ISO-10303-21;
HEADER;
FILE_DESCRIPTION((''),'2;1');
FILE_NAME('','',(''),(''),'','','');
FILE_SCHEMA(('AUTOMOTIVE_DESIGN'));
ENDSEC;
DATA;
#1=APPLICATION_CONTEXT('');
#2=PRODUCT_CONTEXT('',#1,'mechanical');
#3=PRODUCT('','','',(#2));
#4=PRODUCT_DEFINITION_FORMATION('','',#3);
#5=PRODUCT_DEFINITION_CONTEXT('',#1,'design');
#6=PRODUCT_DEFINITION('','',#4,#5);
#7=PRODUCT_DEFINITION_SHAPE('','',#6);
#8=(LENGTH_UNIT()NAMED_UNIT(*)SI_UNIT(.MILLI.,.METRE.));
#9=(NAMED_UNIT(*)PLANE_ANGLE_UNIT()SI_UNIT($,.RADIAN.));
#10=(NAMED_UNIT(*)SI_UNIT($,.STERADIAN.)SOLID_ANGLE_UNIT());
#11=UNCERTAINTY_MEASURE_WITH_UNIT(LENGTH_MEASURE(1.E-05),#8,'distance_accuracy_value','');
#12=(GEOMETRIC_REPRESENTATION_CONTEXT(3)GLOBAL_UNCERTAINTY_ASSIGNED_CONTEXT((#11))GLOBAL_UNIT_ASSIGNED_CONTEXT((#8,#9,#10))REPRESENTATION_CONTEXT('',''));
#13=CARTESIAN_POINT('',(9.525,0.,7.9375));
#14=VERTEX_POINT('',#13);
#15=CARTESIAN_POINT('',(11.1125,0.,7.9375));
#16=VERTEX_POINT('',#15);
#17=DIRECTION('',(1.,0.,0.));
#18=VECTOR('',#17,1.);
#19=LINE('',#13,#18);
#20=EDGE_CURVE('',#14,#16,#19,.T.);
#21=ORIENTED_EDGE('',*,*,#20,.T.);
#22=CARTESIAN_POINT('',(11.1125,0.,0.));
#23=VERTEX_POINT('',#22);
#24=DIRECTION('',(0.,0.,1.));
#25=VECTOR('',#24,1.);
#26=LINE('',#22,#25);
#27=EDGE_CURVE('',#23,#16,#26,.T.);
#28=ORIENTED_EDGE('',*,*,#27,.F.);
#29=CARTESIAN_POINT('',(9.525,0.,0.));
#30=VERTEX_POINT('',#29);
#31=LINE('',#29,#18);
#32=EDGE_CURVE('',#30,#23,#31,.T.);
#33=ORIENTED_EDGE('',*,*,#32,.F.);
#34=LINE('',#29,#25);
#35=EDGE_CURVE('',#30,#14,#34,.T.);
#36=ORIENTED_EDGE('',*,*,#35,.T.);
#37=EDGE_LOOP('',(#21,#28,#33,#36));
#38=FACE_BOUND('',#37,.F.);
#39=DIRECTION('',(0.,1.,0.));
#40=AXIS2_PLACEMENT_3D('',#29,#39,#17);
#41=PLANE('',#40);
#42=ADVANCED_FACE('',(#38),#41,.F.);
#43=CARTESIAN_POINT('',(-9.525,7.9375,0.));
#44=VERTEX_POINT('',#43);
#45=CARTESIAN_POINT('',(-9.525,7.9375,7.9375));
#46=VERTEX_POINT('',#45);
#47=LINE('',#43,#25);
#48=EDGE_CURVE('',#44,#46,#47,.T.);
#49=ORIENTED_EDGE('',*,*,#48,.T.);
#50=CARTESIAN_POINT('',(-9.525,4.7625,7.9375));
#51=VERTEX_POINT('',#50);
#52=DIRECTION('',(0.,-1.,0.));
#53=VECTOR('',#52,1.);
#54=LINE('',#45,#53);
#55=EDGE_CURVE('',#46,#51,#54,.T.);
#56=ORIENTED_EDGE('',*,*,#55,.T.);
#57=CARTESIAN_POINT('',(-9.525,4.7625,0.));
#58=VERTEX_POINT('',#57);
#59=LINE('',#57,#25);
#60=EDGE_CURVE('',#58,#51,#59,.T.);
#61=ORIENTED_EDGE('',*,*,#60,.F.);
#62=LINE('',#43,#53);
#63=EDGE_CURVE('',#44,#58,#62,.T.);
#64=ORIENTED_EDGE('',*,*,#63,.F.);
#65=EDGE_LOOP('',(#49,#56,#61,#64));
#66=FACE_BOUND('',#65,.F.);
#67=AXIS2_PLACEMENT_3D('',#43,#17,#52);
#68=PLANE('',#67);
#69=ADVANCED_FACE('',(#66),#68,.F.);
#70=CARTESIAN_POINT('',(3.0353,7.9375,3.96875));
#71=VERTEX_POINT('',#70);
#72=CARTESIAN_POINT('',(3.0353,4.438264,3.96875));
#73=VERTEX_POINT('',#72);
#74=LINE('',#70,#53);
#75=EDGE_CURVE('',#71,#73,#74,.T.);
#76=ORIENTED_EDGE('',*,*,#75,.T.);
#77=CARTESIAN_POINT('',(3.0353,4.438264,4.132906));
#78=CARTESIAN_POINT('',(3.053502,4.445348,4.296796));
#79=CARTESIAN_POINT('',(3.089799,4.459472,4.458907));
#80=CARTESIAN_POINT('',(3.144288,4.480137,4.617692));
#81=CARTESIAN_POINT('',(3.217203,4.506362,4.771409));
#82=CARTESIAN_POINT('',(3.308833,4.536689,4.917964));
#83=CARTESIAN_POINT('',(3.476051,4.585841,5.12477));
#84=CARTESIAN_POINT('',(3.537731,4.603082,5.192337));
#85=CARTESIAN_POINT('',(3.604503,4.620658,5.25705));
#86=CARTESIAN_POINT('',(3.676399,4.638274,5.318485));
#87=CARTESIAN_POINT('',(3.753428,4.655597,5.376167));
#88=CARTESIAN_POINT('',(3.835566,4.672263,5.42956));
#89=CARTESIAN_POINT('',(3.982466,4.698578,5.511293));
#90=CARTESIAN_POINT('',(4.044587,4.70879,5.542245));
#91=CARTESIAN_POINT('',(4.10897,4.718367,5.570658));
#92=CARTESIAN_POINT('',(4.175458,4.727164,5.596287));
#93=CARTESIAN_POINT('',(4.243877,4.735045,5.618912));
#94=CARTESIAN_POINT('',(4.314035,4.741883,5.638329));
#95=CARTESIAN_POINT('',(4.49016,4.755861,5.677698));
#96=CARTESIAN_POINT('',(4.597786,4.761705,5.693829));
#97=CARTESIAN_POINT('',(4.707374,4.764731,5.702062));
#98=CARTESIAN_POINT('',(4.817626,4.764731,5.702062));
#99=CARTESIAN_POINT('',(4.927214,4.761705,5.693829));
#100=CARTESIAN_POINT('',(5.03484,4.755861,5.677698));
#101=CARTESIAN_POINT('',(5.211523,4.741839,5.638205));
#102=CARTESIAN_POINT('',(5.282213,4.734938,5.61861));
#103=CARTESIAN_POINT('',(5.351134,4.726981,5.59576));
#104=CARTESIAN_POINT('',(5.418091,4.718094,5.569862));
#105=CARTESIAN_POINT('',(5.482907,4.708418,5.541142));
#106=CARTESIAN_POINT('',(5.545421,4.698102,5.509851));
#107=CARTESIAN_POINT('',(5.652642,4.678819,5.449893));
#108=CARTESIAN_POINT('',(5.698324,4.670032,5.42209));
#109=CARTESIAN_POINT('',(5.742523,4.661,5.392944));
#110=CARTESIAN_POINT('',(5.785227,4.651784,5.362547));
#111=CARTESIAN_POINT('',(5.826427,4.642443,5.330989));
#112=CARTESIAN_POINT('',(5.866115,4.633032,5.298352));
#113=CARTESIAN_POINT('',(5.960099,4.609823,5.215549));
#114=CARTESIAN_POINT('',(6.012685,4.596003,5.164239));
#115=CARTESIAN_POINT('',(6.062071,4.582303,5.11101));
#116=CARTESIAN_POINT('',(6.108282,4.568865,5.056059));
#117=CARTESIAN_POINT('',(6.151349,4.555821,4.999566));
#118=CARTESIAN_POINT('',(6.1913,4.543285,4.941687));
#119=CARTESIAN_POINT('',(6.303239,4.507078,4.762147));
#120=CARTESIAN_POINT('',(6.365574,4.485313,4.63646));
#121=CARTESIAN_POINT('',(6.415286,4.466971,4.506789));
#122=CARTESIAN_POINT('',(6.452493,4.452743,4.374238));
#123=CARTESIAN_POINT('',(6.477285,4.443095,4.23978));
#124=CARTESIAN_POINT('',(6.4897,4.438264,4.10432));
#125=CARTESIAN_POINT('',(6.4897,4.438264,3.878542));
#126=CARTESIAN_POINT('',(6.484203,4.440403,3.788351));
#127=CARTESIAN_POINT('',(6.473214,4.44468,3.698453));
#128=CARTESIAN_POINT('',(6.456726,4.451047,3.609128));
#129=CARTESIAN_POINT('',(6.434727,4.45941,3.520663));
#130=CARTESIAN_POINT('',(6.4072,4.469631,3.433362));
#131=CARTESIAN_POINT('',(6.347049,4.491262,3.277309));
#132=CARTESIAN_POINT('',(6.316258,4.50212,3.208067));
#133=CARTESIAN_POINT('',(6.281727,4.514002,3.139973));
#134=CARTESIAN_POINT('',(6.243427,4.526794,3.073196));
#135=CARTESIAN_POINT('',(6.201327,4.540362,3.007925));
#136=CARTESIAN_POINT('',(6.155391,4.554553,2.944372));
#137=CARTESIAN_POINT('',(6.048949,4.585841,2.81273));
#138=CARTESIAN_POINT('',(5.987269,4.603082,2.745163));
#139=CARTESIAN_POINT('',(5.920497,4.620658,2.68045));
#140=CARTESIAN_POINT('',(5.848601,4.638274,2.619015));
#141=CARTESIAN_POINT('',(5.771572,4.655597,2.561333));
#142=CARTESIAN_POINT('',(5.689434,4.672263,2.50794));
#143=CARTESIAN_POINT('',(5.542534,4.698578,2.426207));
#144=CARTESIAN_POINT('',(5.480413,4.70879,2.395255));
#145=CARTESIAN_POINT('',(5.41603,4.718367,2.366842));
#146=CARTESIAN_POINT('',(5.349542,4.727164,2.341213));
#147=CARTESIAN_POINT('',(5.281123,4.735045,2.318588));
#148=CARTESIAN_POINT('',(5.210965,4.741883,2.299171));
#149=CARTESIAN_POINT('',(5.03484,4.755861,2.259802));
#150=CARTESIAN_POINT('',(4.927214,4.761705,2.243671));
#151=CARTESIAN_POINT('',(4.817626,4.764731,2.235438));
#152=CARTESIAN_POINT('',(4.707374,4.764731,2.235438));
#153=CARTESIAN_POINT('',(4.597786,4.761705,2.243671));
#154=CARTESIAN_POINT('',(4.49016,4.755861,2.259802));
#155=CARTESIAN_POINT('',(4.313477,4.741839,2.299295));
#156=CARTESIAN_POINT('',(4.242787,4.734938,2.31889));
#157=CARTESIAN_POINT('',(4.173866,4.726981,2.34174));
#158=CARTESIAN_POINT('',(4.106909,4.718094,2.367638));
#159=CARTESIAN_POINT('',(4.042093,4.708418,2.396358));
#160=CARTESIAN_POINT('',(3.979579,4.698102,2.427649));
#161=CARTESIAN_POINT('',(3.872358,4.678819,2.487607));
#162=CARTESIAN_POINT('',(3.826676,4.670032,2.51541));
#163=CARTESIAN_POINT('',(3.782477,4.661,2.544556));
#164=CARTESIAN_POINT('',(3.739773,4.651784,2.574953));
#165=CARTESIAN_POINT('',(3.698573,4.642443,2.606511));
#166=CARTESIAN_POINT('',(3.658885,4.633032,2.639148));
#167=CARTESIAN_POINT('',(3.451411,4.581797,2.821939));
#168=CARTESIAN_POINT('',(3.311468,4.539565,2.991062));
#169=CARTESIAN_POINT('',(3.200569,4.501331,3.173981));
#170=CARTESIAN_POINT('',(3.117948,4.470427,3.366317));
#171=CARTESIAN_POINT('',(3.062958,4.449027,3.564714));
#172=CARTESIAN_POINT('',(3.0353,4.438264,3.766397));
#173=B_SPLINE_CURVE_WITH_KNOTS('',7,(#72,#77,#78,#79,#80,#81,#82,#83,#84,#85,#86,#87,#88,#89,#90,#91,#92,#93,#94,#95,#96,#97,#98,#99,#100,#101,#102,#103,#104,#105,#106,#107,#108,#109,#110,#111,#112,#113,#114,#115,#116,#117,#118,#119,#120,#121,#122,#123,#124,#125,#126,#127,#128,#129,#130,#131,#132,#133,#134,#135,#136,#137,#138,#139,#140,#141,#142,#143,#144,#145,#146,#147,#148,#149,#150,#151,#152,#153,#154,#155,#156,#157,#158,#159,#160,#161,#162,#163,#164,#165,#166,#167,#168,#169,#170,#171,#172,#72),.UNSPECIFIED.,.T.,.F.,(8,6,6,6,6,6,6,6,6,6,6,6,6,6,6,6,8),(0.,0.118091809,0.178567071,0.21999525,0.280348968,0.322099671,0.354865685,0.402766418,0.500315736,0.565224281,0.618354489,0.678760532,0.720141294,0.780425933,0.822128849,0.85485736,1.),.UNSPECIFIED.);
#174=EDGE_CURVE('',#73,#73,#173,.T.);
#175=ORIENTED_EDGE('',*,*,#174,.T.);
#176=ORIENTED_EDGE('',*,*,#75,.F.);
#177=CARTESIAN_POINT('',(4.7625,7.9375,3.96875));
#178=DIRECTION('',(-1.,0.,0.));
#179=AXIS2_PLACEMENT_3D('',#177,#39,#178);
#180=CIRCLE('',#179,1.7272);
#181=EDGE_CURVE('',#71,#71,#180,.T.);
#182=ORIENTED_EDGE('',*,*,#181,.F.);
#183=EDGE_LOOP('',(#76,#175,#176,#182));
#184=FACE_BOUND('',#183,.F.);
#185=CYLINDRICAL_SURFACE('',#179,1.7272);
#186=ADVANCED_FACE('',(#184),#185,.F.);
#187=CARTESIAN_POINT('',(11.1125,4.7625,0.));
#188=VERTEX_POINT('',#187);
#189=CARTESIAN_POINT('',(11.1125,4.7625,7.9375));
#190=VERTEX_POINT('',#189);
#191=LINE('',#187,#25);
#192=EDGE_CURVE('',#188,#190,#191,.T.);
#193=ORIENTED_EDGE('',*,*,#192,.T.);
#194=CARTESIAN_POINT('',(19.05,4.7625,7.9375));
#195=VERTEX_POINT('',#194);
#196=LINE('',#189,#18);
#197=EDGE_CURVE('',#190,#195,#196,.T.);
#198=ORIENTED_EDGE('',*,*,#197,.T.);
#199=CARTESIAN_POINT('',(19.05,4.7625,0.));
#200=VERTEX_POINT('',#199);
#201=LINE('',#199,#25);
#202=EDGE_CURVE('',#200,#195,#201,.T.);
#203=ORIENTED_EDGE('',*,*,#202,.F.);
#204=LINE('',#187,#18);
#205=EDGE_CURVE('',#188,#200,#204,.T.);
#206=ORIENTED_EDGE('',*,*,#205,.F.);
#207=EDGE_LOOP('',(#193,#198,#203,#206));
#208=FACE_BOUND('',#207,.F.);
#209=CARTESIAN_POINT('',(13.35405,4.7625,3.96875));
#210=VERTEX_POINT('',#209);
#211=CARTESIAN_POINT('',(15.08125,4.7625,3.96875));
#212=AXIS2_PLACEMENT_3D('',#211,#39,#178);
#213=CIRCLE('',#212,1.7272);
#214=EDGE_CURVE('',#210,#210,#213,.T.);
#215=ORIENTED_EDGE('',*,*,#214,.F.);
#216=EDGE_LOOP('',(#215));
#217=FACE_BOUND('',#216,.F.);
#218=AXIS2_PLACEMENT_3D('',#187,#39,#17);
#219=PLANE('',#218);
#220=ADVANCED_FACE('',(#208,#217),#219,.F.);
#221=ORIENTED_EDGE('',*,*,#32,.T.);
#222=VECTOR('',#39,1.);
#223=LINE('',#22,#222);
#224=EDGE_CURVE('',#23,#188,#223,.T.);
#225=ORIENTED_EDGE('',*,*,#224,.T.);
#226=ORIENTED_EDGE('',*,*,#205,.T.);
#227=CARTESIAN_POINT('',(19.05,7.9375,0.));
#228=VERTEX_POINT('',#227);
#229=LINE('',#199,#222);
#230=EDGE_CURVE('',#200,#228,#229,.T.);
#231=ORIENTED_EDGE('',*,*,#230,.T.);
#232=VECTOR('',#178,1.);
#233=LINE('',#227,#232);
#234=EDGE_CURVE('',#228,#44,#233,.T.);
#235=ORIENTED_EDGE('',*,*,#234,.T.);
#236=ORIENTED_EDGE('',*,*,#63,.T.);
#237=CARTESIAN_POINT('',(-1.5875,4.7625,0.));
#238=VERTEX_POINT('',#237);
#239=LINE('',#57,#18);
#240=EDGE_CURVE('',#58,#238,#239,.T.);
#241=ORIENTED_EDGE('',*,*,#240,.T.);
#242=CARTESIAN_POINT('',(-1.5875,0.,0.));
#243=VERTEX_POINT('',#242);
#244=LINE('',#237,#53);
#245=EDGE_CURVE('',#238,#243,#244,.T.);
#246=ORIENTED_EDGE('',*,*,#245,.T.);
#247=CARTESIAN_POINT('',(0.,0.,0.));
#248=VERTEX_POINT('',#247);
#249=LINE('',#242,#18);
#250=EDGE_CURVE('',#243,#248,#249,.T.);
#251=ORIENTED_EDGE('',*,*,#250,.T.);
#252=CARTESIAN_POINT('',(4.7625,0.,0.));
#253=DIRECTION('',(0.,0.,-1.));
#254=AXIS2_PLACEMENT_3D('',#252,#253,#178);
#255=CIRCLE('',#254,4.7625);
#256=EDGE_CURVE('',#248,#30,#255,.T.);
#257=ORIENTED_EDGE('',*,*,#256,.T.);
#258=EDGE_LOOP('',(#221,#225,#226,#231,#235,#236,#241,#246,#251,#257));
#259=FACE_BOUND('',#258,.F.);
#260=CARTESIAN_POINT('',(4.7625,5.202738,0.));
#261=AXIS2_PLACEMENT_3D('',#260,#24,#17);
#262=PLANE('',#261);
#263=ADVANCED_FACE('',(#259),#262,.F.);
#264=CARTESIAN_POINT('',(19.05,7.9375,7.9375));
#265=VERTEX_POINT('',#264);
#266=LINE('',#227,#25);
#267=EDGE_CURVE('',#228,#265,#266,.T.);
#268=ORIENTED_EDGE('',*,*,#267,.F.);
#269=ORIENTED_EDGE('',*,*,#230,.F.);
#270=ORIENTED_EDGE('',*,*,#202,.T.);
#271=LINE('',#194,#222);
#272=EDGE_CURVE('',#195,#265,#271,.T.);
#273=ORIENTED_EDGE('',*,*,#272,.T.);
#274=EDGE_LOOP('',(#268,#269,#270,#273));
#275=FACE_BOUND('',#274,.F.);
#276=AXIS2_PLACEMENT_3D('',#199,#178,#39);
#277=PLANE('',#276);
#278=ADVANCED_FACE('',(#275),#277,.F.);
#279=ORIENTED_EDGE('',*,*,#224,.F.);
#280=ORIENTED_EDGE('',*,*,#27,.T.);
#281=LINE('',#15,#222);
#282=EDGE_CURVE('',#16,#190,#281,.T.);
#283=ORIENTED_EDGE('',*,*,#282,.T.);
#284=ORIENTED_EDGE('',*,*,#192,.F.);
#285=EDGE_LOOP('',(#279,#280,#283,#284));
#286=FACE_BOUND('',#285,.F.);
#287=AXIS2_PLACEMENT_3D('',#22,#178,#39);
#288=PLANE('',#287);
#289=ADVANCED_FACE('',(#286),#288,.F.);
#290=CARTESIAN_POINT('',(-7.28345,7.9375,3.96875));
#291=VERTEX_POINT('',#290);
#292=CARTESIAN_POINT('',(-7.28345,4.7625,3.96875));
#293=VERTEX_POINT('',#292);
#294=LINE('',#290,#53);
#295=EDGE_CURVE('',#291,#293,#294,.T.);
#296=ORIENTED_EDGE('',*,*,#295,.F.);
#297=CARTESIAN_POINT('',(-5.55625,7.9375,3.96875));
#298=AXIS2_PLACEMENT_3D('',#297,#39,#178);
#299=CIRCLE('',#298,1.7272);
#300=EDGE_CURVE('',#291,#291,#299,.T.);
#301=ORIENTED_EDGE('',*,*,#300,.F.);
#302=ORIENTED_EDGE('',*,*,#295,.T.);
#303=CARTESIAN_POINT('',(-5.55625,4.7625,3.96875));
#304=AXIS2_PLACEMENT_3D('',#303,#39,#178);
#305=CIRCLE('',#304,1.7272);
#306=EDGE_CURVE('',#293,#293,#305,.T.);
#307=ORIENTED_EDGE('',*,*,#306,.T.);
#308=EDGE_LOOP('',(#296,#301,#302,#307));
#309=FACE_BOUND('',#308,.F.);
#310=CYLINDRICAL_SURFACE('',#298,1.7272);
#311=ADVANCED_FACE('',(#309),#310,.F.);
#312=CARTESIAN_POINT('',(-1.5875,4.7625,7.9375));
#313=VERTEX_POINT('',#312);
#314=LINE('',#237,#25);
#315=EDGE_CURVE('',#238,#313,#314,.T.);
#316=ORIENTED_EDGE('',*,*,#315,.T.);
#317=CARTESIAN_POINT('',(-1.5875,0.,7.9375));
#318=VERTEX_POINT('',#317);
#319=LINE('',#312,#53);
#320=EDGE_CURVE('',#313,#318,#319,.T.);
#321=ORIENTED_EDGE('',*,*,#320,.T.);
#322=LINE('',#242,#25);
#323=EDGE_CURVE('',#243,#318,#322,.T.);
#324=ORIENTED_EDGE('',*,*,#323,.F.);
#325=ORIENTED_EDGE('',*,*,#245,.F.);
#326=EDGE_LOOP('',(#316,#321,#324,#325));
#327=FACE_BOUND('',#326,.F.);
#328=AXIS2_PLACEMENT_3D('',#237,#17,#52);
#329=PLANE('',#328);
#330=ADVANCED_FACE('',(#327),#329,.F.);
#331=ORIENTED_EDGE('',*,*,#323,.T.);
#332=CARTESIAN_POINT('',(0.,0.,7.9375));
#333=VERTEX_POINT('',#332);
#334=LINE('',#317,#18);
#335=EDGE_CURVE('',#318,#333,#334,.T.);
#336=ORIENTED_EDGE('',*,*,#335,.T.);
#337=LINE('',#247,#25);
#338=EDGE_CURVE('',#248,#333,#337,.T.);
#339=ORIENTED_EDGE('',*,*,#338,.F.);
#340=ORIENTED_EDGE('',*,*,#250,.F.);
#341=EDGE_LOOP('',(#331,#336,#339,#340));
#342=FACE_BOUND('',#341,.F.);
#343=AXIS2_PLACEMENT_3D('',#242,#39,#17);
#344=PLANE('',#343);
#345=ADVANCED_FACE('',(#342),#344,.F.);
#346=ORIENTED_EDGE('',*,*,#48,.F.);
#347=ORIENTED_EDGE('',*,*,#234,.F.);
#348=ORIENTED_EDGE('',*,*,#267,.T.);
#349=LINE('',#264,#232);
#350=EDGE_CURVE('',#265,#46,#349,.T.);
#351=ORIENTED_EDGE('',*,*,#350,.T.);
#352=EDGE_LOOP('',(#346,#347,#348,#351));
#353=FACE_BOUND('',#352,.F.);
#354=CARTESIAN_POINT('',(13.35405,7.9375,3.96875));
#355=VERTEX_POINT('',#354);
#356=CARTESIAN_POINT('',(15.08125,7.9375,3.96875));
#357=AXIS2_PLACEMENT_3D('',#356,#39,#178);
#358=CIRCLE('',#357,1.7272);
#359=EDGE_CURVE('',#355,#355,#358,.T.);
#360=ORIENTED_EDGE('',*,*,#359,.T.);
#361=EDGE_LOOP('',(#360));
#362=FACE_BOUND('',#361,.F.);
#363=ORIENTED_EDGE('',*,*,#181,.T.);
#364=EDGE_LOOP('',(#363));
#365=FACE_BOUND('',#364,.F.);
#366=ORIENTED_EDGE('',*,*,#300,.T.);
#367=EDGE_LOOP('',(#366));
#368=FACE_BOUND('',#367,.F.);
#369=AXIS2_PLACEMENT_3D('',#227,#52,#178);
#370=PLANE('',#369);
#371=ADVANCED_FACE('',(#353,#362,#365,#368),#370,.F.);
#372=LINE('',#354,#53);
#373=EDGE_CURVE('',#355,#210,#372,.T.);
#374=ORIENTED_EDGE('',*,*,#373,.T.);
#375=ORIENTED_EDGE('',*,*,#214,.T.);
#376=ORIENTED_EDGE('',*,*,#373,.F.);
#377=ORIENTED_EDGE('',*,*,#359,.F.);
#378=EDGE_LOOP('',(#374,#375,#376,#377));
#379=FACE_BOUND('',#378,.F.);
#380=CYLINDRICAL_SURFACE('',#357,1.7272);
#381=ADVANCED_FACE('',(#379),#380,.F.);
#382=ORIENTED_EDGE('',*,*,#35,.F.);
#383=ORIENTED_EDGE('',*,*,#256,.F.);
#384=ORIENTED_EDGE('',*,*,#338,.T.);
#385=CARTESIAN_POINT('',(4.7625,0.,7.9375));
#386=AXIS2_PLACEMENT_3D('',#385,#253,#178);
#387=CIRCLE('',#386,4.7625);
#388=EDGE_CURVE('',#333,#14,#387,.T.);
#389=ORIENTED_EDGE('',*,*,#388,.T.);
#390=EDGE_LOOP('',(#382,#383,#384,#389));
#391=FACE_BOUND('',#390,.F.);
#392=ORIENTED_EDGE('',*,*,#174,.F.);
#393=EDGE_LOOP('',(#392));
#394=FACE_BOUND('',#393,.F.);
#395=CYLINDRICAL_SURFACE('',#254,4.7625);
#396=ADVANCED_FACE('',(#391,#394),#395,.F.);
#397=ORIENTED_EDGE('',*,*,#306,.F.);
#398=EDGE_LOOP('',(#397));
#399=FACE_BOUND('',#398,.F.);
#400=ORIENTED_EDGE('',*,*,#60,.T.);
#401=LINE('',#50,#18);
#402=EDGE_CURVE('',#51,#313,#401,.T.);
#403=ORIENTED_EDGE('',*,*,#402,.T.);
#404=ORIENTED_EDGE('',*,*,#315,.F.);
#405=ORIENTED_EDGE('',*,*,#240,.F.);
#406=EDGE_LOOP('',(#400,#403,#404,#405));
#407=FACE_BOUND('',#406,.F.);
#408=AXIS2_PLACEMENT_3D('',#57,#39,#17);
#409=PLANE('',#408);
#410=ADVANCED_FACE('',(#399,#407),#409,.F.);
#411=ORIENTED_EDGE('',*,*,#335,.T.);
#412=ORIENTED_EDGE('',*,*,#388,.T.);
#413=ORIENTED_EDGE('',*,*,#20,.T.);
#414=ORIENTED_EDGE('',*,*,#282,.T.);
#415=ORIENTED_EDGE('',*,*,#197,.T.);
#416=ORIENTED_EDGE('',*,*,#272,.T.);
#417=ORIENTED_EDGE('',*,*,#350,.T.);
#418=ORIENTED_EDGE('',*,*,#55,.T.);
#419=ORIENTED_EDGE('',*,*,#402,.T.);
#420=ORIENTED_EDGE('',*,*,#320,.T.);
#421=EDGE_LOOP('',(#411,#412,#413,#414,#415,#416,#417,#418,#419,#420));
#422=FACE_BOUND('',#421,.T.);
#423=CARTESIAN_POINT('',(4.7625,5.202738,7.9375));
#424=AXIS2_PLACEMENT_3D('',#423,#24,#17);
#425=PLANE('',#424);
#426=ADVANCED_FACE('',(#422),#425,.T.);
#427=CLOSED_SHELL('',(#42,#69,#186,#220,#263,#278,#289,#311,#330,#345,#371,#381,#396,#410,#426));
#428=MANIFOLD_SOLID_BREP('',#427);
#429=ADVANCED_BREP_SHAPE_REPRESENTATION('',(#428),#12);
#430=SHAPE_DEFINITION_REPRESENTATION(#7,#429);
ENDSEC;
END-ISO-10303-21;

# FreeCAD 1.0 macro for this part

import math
import FreeCAD as App
import Part
import Sketcher
Q = App.Units.Quantity

doc = App.newDocument("Part")
body = doc.addObject("PartDesign::Body", "Body")

# Sketch on XY plane
sketch1 = body.newObject("Sketcher::SketchObject", "Sketch")
sketch1.AttachmentSupport = (doc.getObject("XY_Plane"), [""])
sketch1.MapMode = "FlatFace"
sketch1.addGeometry([
    Part.ArcOfCircle(Part.Circle(App.Vector(4.8, 0, 0), App.Vector(0, 0, 1), 4.8), math.radians(0), math.radians(180)),  # 0
    Part.LineSegment(App.Vector(9.5, 0, 0), App.Vector(11.1, 0, 0)),  # 1
    Part.LineSegment(App.Vector(11.1, 0, 0), App.Vector(11.1, 4.8, 0)),  # 2
    Part.LineSegment(App.Vector(11.1, 4.8, 0), App.Vector(19.1, 4.8, 0)),  # 3
    Part.LineSegment(App.Vector(19.1, 4.8, 0), App.Vector(19.1, 7.9, 0)),  # 4
    Part.LineSegment(App.Vector(19.1, 7.9, 0), App.Vector(-9.5, 7.9, 0)),  # 5
    Part.LineSegment(App.Vector(-9.5, 7.9, 0), App.Vector(-9.5, 4.8, 0)),  # 6
    Part.LineSegment(App.Vector(-9.5, 4.8, 0), App.Vector(-1.6, 4.8, 0)),  # 7
    Part.LineSegment(App.Vector(-1.6, 4.8, 0), App.Vector(-1.6, 0, 0)),  # 8
    Part.LineSegment(App.Vector(-1.6, 0, 0), App.Vector(0, 0, 0)),  # 9
], False)
sketch1.addConstraint([
    Sketcher.Constraint("Coincident", 0, 1, 1, 1),
    Sketcher.Constraint("Coincident", 1, 2, 2, 1),
    Sketcher.Constraint("Coincident", 2, 2, 3, 1),
    Sketcher.Constraint("Coincident", 3, 2, 4, 1),
    Sketcher.Constraint("Coincident", 4, 2, 5, 1),
    Sketcher.Constraint("Coincident", 5, 2, 6, 1),
    Sketcher.Constraint("Coincident", 6, 2, 7, 1),
    Sketcher.Constraint("Coincident", 7, 2, 8, 1),
    Sketcher.Constraint("Coincident", 8, 2, 9, 1),
    Sketcher.Constraint("Coincident", 9, 2, 0, 2),
    Sketcher.Constraint("Horizontal", 1),
    Sketcher.Constraint("Vertical", 2),
    Sketcher.Constraint("Horizontal", 3),
    Sketcher.Constraint("Vertical", 4),
    Sketcher.Constraint("Horizontal", 5),
    Sketcher.Constraint("Vertical", 6),
    Sketcher.Constraint("Horizontal", 7),
    Sketcher.Constraint("Vertical", 8),
    Sketcher.Constraint("Horizontal", 9),
    Sketcher.Constraint("Coincident", 9, 2, -1, 1),
    Sketcher.Constraint("PointOnObject", 0, 3, -1),
    Sketcher.Constraint("PointOnObject", 0, 1, -1),
    Sketcher.Constraint("Horizontal", 3, 2, 6, 2),
    Sketcher.Constraint("Equal", 3, 7),
    Sketcher.Constraint("Equal", 1, 9),
    Sketcher.Constraint("Radius", 0, Q("0.1875 in")),
    Sketcher.Constraint("DistanceX", 7, 2, 2, 2, Q("0.5 in")),
    Sketcher.Constraint("DistanceX", 3, 1, 3, 2, Q("0.3125 in")),
    Sketcher.Constraint("DistanceY", 2, 1, 2, 2, Q("0.1875 in")),
    Sketcher.Constraint("DistanceY", 4, 1, 4, 2, Q("0.125 in")),
])
pad1 = body.newObject("PartDesign::Pad", "Pad")
pad1.Profile = sketch1
pad1.Length = Q("0.3125 in")

# Sketch on XZ plane
sketch2 = body.newObject("Sketcher::SketchObject", "Sketch001")
sketch2.AttachmentSupport = (doc.getObject("XZ_Plane"), [""])
sketch2.MapMode = "FlatFace"
sketch2.AttachmentOffset = App.Placement(App.Vector(0, 0, -0.3125 * 25.4), App.Rotation())
sketch2.addGeometry([
    Part.Circle(App.Vector(-5.6, 4, 0), App.Vector(0, 0, 1), 1.7),
    Part.Circle(App.Vector(15.1, 4, 0), App.Vector(0, 0, 1), 1.7),
    Part.Circle(App.Vector(4.8, 4, 0), App.Vector(0, 0, 1), 1.7),
], False)
sketch2.addConstraint([
    Sketcher.Constraint("Equal", 0, 1),
    Sketcher.Constraint("Equal", 1, 2),
    Sketcher.Constraint("Horizontal", 0, 3, 1, 3),
    Sketcher.Constraint("Horizontal", 1, 3, 2, 3),
    Sketcher.Constraint("Diameter", 0, Q("0.136 in")),
    Sketcher.Constraint("DistanceX", 0, 3, -1, 1, Q("0.21875 in")),
    Sketcher.Constraint("DistanceY", -1, 1, 0, 3, Q("0.15625 in")),
    Sketcher.Constraint("DistanceX", -1, 1, 1, 3, Q("0.59375 in")),
    Sketcher.Constraint("DistanceX", -1, 1, 2, 3, Q("0.1875 in")),
])
pocket1 = body.newObject("PartDesign::Pocket", "Pocket")
pocket1.Profile = sketch2
pocket1.Type = "ThroughAll"
pocket1.Reversed = True

doc.recompute()
